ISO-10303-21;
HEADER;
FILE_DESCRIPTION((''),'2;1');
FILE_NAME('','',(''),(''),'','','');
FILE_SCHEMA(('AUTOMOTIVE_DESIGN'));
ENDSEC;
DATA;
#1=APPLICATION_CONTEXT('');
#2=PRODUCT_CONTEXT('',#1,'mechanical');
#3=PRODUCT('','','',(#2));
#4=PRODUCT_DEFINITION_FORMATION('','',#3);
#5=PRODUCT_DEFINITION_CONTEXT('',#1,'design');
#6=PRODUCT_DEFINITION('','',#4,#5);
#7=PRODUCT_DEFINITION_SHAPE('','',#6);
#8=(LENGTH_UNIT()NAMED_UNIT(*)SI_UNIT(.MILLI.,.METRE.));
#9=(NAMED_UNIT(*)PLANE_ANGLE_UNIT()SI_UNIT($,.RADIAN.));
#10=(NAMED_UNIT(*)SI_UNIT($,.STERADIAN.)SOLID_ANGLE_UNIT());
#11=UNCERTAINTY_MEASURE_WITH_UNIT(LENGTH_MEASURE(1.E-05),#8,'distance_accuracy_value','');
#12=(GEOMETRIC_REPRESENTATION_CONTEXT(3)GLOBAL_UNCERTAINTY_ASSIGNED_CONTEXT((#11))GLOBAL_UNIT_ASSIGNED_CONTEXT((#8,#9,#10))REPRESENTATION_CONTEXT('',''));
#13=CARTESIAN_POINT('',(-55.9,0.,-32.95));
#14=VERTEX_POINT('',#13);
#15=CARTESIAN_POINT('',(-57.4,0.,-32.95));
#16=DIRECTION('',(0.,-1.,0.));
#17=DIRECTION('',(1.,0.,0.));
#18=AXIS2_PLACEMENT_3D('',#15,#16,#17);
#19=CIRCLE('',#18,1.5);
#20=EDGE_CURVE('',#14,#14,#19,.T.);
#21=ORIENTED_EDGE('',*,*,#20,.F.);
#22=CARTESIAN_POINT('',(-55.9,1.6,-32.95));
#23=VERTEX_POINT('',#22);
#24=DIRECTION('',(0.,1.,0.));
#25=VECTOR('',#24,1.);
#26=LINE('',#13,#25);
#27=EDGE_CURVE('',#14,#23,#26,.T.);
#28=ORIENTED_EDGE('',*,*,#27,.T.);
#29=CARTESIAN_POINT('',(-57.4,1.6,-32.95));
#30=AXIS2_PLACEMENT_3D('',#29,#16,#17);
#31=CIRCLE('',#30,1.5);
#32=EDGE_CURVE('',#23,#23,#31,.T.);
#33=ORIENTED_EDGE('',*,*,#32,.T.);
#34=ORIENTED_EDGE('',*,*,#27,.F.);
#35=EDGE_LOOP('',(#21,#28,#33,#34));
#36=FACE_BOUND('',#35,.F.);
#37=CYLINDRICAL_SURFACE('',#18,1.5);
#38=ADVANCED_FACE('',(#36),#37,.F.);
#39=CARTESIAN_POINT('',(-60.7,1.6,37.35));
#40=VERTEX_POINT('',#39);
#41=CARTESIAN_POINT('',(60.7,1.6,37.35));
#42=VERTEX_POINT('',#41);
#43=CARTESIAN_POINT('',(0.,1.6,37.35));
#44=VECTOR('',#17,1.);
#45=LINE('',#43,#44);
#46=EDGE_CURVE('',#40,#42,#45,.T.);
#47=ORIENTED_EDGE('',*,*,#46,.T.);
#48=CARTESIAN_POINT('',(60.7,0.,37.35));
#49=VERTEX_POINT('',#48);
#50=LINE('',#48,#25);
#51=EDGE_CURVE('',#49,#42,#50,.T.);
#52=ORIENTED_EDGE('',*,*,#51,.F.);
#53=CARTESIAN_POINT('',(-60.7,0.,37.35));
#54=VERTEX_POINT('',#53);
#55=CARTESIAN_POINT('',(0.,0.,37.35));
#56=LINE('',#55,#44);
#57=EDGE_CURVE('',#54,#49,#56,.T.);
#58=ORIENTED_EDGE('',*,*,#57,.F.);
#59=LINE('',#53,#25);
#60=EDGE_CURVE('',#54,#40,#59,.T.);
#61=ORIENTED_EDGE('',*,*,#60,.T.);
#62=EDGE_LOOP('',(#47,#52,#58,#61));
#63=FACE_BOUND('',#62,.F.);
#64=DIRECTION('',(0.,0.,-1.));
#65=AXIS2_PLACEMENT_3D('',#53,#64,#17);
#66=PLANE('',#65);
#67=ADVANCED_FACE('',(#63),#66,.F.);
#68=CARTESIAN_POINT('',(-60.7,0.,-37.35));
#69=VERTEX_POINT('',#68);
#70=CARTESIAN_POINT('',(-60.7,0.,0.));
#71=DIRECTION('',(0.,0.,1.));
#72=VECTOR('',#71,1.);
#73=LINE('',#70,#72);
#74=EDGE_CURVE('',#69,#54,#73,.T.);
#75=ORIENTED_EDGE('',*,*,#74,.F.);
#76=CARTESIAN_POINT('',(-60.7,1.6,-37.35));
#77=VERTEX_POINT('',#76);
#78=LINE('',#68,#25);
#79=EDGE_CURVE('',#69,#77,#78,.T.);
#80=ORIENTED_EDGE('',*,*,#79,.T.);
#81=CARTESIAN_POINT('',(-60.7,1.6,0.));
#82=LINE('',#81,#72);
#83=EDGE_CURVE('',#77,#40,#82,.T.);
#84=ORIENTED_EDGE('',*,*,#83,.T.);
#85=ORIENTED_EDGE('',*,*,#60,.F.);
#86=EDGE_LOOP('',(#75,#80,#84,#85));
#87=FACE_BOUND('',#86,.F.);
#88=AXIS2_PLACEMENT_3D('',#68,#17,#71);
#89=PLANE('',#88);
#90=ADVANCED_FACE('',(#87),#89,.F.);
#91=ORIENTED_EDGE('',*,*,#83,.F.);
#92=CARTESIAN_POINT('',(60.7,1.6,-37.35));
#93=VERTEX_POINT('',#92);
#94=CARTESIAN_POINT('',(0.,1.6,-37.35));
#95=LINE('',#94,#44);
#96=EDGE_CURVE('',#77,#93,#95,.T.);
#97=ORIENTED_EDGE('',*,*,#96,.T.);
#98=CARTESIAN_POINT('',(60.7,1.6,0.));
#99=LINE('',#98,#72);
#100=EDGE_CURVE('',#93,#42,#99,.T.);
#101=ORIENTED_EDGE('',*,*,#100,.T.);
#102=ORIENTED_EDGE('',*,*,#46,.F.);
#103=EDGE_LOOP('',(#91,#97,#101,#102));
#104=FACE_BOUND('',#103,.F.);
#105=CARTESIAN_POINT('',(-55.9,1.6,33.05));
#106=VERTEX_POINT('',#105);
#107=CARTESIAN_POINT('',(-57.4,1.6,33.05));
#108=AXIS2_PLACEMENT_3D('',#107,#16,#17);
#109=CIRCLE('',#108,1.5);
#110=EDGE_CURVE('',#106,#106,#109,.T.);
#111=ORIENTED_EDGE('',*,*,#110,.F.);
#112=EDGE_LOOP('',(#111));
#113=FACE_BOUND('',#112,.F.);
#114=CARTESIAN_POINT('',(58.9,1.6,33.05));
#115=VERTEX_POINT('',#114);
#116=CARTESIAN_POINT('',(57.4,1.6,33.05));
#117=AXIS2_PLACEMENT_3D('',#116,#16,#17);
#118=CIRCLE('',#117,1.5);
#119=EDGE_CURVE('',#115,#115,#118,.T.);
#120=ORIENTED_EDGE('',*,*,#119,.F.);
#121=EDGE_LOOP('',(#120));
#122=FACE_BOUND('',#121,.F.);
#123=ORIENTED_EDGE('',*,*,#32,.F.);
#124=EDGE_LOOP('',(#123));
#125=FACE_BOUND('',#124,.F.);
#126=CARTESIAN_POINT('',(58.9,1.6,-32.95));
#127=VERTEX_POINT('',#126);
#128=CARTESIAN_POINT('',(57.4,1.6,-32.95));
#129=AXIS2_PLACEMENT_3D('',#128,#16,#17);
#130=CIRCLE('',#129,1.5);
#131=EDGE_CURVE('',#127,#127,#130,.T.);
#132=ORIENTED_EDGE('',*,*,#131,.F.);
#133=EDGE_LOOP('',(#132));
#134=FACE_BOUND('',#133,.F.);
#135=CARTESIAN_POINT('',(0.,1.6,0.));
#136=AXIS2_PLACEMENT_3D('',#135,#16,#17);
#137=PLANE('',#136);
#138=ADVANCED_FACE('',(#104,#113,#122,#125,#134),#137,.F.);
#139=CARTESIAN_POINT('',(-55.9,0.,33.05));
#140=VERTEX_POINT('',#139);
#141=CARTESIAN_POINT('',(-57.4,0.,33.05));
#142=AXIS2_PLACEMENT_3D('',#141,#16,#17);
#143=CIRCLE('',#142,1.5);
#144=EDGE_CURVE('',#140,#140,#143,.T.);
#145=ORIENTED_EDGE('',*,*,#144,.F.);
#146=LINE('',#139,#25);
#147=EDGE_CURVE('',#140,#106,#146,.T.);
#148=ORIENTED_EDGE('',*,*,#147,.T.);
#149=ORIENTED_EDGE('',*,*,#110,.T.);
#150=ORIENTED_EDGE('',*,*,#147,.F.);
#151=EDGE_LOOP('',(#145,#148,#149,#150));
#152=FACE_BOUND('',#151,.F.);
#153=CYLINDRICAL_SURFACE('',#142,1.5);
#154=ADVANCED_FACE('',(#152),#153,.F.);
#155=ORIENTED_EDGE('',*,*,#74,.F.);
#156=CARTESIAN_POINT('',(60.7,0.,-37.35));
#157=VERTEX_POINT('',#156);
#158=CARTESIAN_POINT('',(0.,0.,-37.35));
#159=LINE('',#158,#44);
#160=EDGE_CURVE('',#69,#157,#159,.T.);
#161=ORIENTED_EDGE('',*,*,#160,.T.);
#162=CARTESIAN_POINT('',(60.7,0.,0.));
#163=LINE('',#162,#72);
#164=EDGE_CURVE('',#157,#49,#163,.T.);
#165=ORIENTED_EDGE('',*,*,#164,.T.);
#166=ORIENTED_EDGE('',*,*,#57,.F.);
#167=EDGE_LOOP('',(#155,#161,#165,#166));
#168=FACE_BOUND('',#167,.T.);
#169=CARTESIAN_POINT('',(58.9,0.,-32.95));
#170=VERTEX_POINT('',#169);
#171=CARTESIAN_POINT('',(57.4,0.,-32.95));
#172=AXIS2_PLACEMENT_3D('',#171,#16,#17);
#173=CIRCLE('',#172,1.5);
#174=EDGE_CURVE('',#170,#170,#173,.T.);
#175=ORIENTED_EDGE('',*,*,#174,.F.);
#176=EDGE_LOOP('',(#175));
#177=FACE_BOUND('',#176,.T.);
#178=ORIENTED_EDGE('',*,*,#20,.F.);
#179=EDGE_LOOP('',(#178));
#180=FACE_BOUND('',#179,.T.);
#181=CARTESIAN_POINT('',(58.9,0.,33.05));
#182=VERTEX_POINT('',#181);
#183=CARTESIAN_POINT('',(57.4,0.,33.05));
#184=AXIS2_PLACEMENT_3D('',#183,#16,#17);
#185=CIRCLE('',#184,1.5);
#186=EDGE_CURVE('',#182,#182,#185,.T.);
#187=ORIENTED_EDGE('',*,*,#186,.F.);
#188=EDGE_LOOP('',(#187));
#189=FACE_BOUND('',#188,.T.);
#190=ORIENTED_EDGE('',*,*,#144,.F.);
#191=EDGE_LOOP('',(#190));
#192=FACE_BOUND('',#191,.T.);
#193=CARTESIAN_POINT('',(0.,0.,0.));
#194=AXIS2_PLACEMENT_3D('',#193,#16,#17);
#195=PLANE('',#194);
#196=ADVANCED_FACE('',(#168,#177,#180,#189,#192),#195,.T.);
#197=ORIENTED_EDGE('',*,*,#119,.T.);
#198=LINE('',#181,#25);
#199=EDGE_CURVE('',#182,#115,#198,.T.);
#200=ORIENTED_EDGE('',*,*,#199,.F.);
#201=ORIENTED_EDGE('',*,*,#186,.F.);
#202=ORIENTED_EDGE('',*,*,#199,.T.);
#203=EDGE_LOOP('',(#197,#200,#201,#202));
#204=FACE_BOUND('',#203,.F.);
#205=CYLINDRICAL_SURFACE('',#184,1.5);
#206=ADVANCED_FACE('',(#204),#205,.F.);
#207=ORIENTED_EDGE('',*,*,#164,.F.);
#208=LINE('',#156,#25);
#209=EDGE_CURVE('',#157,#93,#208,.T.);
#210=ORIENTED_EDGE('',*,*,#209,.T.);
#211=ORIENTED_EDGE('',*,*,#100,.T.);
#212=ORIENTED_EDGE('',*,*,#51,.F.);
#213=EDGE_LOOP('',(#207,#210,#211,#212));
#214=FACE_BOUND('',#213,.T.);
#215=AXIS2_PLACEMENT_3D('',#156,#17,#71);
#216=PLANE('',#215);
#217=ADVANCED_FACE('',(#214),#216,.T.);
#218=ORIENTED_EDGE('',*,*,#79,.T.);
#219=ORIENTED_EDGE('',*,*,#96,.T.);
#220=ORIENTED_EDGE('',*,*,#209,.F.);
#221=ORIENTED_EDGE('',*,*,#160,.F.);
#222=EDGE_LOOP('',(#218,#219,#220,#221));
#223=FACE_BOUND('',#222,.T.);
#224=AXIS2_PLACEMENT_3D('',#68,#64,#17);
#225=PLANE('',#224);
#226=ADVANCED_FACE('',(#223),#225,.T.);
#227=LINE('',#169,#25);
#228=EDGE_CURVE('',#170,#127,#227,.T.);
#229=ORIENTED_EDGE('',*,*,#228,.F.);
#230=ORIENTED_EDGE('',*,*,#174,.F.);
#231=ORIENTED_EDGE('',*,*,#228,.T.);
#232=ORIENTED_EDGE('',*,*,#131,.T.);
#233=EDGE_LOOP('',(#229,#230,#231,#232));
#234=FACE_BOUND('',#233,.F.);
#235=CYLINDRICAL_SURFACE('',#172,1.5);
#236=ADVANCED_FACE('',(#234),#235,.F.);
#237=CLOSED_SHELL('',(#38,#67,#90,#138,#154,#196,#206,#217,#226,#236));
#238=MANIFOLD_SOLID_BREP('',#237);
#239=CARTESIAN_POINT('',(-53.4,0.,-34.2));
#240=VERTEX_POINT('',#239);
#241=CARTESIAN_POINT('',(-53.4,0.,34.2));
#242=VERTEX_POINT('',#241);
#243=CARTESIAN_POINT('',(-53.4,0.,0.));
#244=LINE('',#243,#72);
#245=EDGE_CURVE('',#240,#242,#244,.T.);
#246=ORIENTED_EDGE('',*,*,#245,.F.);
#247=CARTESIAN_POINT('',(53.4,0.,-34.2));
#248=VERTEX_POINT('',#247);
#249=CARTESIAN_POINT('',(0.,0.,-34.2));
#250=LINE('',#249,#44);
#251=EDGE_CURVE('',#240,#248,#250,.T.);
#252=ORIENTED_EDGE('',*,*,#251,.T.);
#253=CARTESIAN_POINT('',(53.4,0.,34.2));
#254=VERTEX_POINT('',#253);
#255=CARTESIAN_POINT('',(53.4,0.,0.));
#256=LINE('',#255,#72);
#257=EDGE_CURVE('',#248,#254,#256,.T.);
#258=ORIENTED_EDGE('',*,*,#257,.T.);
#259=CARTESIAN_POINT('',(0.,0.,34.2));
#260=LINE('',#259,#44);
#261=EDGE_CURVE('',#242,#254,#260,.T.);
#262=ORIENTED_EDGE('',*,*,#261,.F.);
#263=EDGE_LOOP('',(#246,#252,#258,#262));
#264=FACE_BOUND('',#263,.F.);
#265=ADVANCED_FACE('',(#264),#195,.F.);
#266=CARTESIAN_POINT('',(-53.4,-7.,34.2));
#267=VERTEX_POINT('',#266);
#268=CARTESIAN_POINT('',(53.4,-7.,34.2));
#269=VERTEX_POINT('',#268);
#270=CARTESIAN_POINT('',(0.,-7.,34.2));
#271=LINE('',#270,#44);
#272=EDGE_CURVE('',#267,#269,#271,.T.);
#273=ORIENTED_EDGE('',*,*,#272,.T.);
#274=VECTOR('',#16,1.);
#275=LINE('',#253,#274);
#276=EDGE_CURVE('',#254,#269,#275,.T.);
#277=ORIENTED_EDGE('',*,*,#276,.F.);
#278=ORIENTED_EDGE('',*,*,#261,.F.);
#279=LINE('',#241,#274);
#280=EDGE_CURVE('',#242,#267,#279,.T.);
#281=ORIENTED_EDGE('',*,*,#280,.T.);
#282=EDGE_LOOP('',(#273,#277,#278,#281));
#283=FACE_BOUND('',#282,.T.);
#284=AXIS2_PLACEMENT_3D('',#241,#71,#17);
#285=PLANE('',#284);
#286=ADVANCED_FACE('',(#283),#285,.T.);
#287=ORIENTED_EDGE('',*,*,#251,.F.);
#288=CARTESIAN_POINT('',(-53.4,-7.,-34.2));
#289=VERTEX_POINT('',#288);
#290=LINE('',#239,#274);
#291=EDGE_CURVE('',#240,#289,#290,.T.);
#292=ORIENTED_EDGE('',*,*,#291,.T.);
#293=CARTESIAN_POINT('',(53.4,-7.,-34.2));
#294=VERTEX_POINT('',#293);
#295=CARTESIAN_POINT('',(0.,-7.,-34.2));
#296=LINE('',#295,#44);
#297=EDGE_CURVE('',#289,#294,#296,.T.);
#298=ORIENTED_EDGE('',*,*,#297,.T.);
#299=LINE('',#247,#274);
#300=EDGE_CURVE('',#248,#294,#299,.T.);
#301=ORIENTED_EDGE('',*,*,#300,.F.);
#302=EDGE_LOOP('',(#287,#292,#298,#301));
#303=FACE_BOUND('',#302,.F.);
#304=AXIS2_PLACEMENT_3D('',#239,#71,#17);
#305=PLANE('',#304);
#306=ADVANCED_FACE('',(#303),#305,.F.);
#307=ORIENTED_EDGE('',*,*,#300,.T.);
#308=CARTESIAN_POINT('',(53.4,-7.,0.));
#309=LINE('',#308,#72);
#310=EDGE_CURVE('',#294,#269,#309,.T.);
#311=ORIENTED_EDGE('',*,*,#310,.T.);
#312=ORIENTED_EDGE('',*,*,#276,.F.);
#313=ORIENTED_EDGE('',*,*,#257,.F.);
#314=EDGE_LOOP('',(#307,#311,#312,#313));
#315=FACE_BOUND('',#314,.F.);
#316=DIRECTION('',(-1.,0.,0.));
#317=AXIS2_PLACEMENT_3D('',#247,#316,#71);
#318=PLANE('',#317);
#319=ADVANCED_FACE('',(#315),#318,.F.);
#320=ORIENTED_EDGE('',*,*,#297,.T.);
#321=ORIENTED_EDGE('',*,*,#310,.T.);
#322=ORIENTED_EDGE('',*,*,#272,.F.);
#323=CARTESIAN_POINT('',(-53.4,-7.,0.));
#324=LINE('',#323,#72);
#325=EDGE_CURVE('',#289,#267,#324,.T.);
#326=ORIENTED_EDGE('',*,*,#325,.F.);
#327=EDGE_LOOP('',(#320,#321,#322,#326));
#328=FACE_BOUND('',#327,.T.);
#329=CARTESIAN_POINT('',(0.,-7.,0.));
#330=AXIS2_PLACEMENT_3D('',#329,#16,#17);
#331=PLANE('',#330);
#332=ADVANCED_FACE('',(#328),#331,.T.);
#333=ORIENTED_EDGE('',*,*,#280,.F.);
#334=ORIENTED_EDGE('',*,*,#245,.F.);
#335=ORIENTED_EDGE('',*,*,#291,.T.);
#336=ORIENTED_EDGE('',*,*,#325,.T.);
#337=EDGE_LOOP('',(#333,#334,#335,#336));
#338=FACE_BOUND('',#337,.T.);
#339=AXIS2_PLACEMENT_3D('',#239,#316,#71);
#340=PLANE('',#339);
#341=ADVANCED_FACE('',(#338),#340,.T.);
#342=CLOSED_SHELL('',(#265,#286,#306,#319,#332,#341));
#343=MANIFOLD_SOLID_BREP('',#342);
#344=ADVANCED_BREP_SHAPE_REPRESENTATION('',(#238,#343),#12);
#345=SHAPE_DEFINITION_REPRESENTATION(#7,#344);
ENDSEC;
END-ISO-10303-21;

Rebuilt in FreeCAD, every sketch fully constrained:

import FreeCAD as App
import Part
import Sketcher

V = App.Vector
Q = App.Units.Quantity


def add_polygon(sketch, points):
    """Adds a closed chain of lines whose ends are joined by coincident constraints."""
    first, n = sketch.GeometryCount, len(points)
    for a, b in zip(points, points[1:] + points[:1]):
        sketch.addGeometry(Part.LineSegment(App.Vector(*a, 0), App.Vector(*b, 0)), False)
    for i in range(n):
        sketch.addConstraint(Sketcher.Constraint("Coincident", first + i, 2, first + (i + 1) % n, 1))

doc = App.newDocument("Part")
body = doc.addObject("PartDesign::Body", "Body")

sketch1 = doc.addObject("Sketcher::SketchObject", "Sketch")
body.addObject(sketch1)
sketch1.AttachmentSupport = (doc.XZ_Plane, [""])
sketch1.MapMode = "FlatFace"
add_polygon(sketch1, [(-60.7, 37.4), (-60.7, -37.4), (60.7, -37.4), (60.7, 37.4)])
sketch1.addGeometry(Part.Circle(V(-57.4, -33, 0), V(0, 0, 1), 1.5), False)
sketch1.addGeometry(Part.Circle(V(57.4, -33, 0), V(0, 0, 1), 1.5), False)
sketch1.addGeometry(Part.Circle(V(-57.4, 33, 0), V(0, 0, 1), 1.5), False)
sketch1.addGeometry(Part.Circle(V(57.4, 33, 0), V(0, 0, 1), 1.5), False)
sketch1.addConstraint([
    Sketcher.Constraint("Vertical", 0),
    Sketcher.Constraint("Horizontal", 1),
    Sketcher.Constraint("Vertical", 2),
    Sketcher.Constraint("Horizontal", 3),
    Sketcher.Constraint("Equal", 4, 5),
    Sketcher.Constraint("Equal", 5, 6),
    Sketcher.Constraint("Equal", 6, 7),
    Sketcher.Constraint("Symmetric", 0, 2, 2, 2, -1, 1),
    Sketcher.Constraint("Symmetric", 4, 3, 5, 3, -2),
    Sketcher.Constraint("Symmetric", 6, 3, 7, 3, -2),
    Sketcher.Constraint("Vertical", 4, 3, 6, 3),
    Sketcher.Constraint("Diameter", 4, Q("3 mm")),
    Sketcher.Constraint("DistanceX", 1, 1, 1, 2, Q("121.4 mm")),
    Sketcher.Constraint("DistanceY", 0, 2, 0, 1, Q("74.7 mm")),
    Sketcher.Constraint("DistanceY", 4, 3, 6, 3, Q("66 mm")),
    Sketcher.Constraint("DistanceX", 4, 3, -1, 1, Q("57.4 mm")),
    Sketcher.Constraint("DistanceY", 0, 2, 4, 3, Q("4.4 mm")),
])
pad1 = doc.addObject("PartDesign::Pad", "Pad")
body.addObject(pad1)
pad1.Profile = sketch1
pad1.Length = 1.6
pad1.Reversed = True
body2 = doc.addObject("PartDesign::Body", "Body001")

sketch2 = doc.addObject("Sketcher::SketchObject", "Sketch001")
body2.addObject(sketch2)
sketch2.AttachmentSupport = (doc.getObject("XZ_Plane001"), [""])
sketch2.MapMode = "FlatFace"
add_polygon(sketch2, [(-53, 34), (-53, -34), (53, -34), (53, 34)])
sketch2.addConstraint([
    Sketcher.Constraint("Vertical", 0),
    Sketcher.Constraint("Horizontal", 1),
    Sketcher.Constraint("Vertical", 2),
    Sketcher.Constraint("Horizontal", 3),
    Sketcher.Constraint("Symmetric", 0, 2, 2, 2, -1, 1),
    Sketcher.Constraint("DistanceX", 1, 1, 1, 2, Q("106.8 mm")),
    Sketcher.Constraint("DistanceY", 0, 2, 0, 1, Q("68.4 mm")),
])
pad2 = doc.addObject("PartDesign::Pad", "Pad001")
body2.addObject(pad2)
pad2.Profile = sketch2
pad2.Length = 7

doc.recompute()
